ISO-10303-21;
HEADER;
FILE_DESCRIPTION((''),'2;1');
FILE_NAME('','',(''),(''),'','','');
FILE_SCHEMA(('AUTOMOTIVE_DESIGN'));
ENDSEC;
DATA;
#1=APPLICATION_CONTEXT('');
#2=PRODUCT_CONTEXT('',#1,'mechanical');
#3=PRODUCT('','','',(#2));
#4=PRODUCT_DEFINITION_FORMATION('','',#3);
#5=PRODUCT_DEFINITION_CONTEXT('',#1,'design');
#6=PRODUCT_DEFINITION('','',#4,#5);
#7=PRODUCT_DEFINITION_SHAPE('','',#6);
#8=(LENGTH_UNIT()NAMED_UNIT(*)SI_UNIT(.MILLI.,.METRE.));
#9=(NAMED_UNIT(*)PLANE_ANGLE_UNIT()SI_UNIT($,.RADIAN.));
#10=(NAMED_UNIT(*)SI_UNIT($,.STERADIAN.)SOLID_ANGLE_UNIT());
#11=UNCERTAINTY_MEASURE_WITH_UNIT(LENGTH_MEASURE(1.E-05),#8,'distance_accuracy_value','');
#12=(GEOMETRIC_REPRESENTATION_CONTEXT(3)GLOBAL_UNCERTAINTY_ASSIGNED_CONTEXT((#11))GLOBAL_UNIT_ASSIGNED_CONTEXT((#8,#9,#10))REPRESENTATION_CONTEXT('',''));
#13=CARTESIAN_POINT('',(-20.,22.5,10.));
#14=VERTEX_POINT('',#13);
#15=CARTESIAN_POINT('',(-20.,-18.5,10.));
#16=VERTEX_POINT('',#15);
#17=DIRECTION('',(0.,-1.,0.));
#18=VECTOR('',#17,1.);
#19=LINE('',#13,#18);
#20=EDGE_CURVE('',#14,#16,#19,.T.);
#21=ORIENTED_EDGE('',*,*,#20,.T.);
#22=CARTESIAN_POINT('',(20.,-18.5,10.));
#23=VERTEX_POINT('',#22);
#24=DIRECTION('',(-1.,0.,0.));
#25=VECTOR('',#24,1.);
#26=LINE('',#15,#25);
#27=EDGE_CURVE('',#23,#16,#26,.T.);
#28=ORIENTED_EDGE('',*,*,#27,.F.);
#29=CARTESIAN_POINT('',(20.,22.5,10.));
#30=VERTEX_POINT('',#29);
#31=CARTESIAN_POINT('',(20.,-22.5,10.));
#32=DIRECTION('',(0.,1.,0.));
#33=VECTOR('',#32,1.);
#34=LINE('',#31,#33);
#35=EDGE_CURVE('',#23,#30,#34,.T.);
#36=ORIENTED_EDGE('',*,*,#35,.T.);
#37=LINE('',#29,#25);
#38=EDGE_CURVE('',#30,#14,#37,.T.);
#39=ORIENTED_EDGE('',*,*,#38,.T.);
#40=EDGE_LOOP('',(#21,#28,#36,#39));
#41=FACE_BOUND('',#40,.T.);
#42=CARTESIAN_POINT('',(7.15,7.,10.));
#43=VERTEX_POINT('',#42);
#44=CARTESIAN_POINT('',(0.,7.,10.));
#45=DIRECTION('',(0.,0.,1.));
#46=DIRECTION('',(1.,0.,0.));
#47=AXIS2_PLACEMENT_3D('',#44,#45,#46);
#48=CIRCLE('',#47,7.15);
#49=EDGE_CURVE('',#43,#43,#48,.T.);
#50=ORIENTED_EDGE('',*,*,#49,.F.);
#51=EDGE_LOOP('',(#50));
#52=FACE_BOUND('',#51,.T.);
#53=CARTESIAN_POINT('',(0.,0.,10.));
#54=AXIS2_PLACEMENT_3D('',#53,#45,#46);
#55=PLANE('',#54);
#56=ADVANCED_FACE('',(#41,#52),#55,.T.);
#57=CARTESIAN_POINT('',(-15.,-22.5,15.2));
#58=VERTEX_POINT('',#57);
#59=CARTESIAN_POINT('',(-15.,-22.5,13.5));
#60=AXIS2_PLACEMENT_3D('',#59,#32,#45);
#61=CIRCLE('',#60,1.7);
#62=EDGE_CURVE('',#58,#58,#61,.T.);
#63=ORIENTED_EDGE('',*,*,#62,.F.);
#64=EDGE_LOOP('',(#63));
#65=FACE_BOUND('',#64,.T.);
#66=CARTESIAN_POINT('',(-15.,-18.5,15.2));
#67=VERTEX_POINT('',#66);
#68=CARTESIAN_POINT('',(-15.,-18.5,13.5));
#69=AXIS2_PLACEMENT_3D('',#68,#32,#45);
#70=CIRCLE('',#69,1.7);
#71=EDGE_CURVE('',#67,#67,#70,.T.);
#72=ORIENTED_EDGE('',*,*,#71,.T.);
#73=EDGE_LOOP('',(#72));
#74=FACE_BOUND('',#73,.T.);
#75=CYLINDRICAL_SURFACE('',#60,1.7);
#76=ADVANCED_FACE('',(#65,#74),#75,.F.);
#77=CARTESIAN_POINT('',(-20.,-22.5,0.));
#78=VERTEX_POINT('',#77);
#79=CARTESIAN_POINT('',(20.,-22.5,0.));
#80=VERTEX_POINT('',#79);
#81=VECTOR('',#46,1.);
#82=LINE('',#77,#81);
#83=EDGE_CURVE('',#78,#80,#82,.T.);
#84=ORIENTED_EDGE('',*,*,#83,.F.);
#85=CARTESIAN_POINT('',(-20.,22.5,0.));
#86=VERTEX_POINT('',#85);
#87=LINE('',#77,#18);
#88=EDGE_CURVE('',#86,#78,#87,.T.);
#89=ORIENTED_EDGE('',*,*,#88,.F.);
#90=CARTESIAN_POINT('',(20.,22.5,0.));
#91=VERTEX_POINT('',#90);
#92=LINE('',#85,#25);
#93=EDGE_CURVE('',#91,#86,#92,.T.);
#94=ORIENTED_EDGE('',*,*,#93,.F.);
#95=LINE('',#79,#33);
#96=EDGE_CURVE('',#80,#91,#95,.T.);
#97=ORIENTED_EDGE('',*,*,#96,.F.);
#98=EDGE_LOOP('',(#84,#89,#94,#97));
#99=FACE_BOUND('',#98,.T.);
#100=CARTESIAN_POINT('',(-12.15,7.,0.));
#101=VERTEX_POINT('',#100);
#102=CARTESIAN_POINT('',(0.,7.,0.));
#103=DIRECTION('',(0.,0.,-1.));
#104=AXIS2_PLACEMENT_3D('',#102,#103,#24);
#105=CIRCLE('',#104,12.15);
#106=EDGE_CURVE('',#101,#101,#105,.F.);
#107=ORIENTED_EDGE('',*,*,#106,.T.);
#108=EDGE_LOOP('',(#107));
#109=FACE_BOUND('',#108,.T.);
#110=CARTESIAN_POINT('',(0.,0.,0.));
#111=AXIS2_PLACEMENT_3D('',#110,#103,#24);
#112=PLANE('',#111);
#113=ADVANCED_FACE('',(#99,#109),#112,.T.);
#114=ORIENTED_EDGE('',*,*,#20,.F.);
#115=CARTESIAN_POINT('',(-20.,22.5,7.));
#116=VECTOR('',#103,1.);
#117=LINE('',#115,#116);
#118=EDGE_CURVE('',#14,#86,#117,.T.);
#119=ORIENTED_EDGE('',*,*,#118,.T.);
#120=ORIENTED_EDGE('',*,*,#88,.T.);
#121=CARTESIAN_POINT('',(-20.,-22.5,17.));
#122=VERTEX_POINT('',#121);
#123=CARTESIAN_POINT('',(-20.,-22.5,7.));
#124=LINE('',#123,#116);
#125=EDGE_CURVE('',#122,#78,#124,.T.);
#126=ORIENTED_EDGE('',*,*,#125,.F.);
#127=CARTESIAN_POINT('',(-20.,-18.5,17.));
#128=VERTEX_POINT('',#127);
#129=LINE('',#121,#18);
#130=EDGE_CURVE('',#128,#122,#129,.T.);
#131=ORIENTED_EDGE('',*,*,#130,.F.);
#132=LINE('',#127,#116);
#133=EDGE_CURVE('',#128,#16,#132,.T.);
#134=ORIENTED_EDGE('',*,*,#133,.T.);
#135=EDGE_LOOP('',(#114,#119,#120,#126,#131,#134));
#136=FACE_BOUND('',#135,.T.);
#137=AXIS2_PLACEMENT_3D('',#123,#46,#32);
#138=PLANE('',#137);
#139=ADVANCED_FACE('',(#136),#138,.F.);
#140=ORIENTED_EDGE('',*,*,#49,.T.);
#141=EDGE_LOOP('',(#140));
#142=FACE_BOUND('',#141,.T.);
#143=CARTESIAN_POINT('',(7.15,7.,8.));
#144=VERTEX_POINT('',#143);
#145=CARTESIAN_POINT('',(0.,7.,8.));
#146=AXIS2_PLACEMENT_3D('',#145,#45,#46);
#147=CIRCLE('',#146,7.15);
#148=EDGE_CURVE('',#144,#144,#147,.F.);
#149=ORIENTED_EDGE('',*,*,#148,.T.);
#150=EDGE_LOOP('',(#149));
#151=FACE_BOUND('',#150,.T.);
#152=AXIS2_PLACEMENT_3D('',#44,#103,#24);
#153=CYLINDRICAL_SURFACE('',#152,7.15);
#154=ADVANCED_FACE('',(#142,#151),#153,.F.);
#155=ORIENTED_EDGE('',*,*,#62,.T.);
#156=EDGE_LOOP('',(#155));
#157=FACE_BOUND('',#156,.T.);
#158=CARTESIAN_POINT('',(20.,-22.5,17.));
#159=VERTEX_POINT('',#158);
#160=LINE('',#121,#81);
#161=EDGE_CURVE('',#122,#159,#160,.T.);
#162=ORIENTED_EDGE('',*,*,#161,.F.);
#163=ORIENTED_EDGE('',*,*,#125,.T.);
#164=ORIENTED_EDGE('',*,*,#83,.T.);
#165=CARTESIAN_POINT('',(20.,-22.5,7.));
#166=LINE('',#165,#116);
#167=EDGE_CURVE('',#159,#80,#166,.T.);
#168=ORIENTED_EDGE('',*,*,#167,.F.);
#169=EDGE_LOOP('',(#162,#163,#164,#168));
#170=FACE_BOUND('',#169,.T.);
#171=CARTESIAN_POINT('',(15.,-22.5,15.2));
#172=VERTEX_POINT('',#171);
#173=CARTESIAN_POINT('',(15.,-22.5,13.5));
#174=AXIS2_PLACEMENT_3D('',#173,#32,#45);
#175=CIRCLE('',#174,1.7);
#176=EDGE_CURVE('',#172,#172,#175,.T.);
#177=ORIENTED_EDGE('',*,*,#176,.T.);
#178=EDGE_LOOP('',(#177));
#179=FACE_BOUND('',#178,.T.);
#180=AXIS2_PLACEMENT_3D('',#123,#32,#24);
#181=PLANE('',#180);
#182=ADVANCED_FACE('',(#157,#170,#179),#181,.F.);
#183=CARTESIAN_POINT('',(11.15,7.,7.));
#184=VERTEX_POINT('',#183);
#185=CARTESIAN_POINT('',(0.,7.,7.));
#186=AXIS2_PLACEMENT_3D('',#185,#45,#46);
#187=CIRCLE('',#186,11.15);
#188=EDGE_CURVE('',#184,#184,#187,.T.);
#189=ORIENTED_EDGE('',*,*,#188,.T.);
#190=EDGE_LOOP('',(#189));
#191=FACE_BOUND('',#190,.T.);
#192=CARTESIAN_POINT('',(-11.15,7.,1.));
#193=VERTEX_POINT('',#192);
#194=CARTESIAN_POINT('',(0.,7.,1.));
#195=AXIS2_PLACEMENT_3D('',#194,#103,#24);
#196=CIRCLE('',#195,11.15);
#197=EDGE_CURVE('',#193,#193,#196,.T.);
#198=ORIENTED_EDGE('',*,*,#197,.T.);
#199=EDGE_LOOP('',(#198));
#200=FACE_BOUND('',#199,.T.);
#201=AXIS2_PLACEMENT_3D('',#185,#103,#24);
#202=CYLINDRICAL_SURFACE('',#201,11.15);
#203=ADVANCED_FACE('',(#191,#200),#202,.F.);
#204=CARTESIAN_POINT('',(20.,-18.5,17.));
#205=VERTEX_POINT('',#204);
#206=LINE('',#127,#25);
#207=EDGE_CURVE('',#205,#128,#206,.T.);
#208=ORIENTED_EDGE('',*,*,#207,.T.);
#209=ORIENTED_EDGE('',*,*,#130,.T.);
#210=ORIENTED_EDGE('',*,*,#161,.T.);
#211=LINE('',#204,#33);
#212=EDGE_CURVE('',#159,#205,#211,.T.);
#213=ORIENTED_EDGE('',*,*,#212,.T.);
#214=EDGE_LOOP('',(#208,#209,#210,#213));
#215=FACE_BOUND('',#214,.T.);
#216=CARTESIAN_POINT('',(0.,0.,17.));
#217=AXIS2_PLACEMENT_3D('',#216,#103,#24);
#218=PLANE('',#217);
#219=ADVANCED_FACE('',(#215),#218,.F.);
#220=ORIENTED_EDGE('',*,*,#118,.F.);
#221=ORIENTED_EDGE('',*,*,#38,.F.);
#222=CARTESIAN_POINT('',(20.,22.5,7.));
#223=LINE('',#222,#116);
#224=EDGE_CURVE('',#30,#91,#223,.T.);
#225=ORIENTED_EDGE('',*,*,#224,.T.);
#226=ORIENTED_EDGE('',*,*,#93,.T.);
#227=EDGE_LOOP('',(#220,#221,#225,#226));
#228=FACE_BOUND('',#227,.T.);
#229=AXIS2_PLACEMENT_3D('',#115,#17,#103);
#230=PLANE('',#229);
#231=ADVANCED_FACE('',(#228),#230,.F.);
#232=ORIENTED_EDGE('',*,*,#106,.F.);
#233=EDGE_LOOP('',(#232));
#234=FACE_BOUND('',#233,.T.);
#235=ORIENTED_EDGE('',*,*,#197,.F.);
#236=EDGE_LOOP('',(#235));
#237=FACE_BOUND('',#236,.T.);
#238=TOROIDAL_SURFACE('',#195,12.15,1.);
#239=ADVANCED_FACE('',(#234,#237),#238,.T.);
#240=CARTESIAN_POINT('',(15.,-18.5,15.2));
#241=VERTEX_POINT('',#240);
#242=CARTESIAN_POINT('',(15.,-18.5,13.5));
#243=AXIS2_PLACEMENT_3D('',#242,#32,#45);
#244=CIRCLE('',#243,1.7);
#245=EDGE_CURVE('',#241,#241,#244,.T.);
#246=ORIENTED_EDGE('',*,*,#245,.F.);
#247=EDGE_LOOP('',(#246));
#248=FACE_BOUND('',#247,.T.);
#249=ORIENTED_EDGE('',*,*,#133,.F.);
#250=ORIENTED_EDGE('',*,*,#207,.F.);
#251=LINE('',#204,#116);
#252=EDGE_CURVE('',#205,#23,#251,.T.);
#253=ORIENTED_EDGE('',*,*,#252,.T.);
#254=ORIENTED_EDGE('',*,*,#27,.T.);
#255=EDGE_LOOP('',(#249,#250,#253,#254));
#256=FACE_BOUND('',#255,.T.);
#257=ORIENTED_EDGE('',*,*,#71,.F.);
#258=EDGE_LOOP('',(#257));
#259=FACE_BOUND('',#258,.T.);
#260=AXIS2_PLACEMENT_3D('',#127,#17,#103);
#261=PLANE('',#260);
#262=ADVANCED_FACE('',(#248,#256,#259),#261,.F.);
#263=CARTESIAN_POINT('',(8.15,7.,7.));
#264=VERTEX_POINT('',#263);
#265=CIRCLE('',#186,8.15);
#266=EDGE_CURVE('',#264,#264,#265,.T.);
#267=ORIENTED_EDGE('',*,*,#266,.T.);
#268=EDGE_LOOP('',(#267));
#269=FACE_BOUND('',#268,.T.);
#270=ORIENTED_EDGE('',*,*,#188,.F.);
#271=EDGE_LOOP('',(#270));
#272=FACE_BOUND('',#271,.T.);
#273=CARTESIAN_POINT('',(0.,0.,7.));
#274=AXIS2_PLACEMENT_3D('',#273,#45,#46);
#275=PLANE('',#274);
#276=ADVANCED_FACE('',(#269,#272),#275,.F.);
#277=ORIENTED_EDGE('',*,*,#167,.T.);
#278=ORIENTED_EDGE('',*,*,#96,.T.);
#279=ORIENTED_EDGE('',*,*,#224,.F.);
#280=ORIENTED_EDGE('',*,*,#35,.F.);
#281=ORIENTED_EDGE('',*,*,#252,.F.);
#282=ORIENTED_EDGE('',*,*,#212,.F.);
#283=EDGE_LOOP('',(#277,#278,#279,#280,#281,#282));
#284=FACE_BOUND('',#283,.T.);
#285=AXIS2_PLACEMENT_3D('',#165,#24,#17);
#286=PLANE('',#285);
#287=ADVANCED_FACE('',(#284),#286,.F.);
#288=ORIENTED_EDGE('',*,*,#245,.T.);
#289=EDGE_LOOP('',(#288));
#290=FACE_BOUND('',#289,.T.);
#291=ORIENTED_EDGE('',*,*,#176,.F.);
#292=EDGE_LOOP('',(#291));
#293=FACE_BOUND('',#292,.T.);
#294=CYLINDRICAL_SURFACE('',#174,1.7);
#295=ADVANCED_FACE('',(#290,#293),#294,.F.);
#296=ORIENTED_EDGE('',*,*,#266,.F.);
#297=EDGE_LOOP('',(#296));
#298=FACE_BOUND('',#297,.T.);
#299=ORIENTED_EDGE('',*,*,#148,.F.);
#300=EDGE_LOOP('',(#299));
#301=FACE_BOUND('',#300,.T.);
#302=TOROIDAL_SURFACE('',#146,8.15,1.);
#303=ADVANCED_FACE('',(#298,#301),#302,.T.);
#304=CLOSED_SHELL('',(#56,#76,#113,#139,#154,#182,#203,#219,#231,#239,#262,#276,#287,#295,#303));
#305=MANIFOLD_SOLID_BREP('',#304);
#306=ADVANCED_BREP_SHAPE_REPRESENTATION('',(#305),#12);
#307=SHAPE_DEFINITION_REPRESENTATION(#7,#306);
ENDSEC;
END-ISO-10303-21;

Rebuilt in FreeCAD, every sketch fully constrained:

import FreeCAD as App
import Part
import Sketcher
from FreeCAD import Vector


def edges_at(feature, points):
    """Names of the edges that pass closest to the given points."""
    edges = feature.Shape.Edges
    near = lambda p: min(range(len(edges)), key=lambda i: edges[i].distToShape(Part.Vertex(*p))[0])
    return sorted({f"Edge{near(p) + 1}" for p in points})


def add_polygon(sketch, points):
    """Adds a closed chain of lines whose ends are joined by coincident constraints."""
    first, n = sketch.GeometryCount, len(points)
    for a, b in zip(points, points[1:] + points[:1]):
        sketch.addGeometry(Part.LineSegment(App.Vector(*a, 0), App.Vector(*b, 0)), False)
    for i in range(n):
        sketch.addConstraint(Sketcher.Constraint("Coincident", first + i, 2, first + (i + 1) % n, 1))

doc = App.newDocument("Part")
params = doc.addObject("Spreadsheet::Sheet", "Params")
for row, (alias, value) in enumerate([
    ("sketch1_diameter", "22.3 mm"),
    ("sketch1_width", "40 mm"),
    ("sketch1_height", "45 mm"),
    ("pad1_length", "7 mm"),
    ("sketch2_diameter", "14.3 mm"),
    ("sketch2_width", "40 mm"),
    ("sketch2_height", "45 mm"),
    ("pad2_length", "3 mm"),
    ("fillet_radius", "1 mm"),
    ("sketch3_width", "40 mm"),
    ("sketch3_height", "4 mm"),
    ("pad3_length", "7 mm"),
    ("sketch4_diameter", "3.4 mm"),
], start=1):
    params.set(f"A{row}", alias)
    params.set(f"B{row}", "=" + value)
    params.setAlias(f"B{row}", alias)

body = doc.addObject("PartDesign::Body", "Body")

sketch1 = body.newObject("Sketcher::SketchObject", "Sketch")
sketch1.AttachmentSupport = (doc.getObject("XY_Plane"), [""])
sketch1.MapMode = "FlatFace"
add_polygon(sketch1, [(-20, 22), (-20, -22), (20, -22), (20, 22)])
sketch1.addGeometry(Part.Circle(Vector(0, 7, 0), Vector(0, 0, 1), 11), False)
sketch1.addConstraint(Sketcher.Constraint("Vertical", 0))
sketch1.addConstraint(Sketcher.Constraint("Horizontal", 1))
sketch1.addConstraint(Sketcher.Constraint("Vertical", 2))
sketch1.addConstraint(Sketcher.Constraint("Horizontal", 3))
sketch1.addConstraint(Sketcher.Constraint("Symmetric", 0, 2, 2, 2, -1, 1))
sketch1.addConstraint(Sketcher.Constraint("PointOnObject", 4, 3, -2))
sketch1.addConstraint(Sketcher.Constraint("Diameter", 4, 22.3))
sketch1.addConstraint(Sketcher.Constraint("DistanceX", 1, 1, 1, 2, 40.0))
sketch1.addConstraint(Sketcher.Constraint("DistanceY", 0, 2, 0, 1, 45.0))
sketch1.addConstraint(Sketcher.Constraint("DistanceY", -1, 1, 4, 3, 7.0))
sketch1.setExpression("Constraints[10]", "Params.sketch1_diameter")
sketch1.setExpression("Constraints[11]", "Params.sketch1_width")
sketch1.setExpression("Constraints[12]", "Params.sketch1_height")
pad1 = body.newObject("PartDesign::Pad", "Pad")
pad1.Profile = sketch1
pad1.setExpression("Length", "Params.pad1_length")

sketch2 = body.newObject("Sketcher::SketchObject", "Sketch001")
sketch2.AttachmentSupport = (doc.getObject("XY_Plane"), [""])
sketch2.MapMode = "FlatFace"
sketch2.AttachmentOffset = App.Placement(Vector(0, 0, 7), App.Rotation())
add_polygon(sketch2, [(-20, 22), (-20, -22), (20, -22), (20, 22)])
sketch2.addGeometry(Part.Circle(Vector(0, 7, 0), Vector(0, 0, 1), 7), False)
sketch2.addConstraint(Sketcher.Constraint("Vertical", 0))
sketch2.addConstraint(Sketcher.Constraint("Horizontal", 1))
sketch2.addConstraint(Sketcher.Constraint("Vertical", 2))
sketch2.addConstraint(Sketcher.Constraint("Horizontal", 3))
sketch2.addConstraint(Sketcher.Constraint("Symmetric", 0, 2, 2, 2, -1, 1))
sketch2.addConstraint(Sketcher.Constraint("PointOnObject", 4, 3, -2))
sketch2.addConstraint(Sketcher.Constraint("Diameter", 4, 14.3))
sketch2.addConstraint(Sketcher.Constraint("DistanceX", 1, 1, 1, 2, 40.0))
sketch2.addConstraint(Sketcher.Constraint("DistanceY", 0, 2, 0, 1, 45.0))
sketch2.addConstraint(Sketcher.Constraint("DistanceY", -1, 1, 4, 3, 7.0))
sketch2.setExpression("Constraints[10]", "Params.sketch2_diameter")
sketch2.setExpression("Constraints[11]", "Params.sketch2_width")
sketch2.setExpression("Constraints[12]", "Params.sketch2_height")
pad2 = body.newObject("PartDesign::Pad", "Pad001")
pad2.Profile = sketch2
pad2.setExpression("Length", "Params.pad2_length")
doc.recompute()

fillet = body.newObject("PartDesign::Fillet", "Fillet")
fillet.Base = (pad2, edges_at(pad2, [(-11.15, 7, 0), (-7.15, 7, 7)]))
fillet.setExpression("Radius", "Params.fillet_radius")

sketch3 = body.newObject("Sketcher::SketchObject", "Sketch002")
sketch3.AttachmentSupport = (doc.getObject("XY_Plane"), [""])
sketch3.MapMode = "FlatFace"
sketch3.AttachmentOffset = App.Placement(Vector(0, 0, 10), App.Rotation())
add_polygon(sketch3, [(-20, -18.5), (-20, -22.5), (20, -22.5), (20, -18.5)])
sketch3.addConstraint(Sketcher.Constraint("Vertical", 0))
sketch3.addConstraint(Sketcher.Constraint("Horizontal", 1))
sketch3.addConstraint(Sketcher.Constraint("Vertical", 2))
sketch3.addConstraint(Sketcher.Constraint("Horizontal", 3))
sketch3.addConstraint(Sketcher.Constraint("DistanceX", 1, 1, 1, 2, 40.0))
sketch3.addConstraint(Sketcher.Constraint("DistanceY", 0, 2, 0, 1, 4.0))
sketch3.addConstraint(Sketcher.Constraint("DistanceX", 0, 2, -1, 1, 20.0))
sketch3.addConstraint(Sketcher.Constraint("DistanceY", 0, 2, -1, 1, 22.5))
sketch3.setExpression("Constraints[8]", "Params.sketch3_width")
sketch3.setExpression("Constraints[9]", "Params.sketch3_height")
pad3 = body.newObject("PartDesign::Pad", "Pad002")
pad3.Profile = sketch3
pad3.setExpression("Length", "Params.pad3_length")

sketch4 = body.newObject("Sketcher::SketchObject", "Sketch003")
sketch4.AttachmentSupport = (doc.getObject("XZ_Plane"), [""])
sketch4.MapMode = "FlatFace"
sketch4.AttachmentOffset = App.Placement(Vector(0, 0, 18.5), App.Rotation())
sketch4.addGeometry(Part.Circle(Vector(-15, 13.5, 0), Vector(0, 0, 1), 1.7), False)
sketch4.addGeometry(Part.Circle(Vector(15, 13.5, 0), Vector(0, 0, 1), 1.7), False)
sketch4.addConstraint(Sketcher.Constraint("Equal", 0, 1))
sketch4.addConstraint(Sketcher.Constraint("Symmetric", 0, 3, 1, 3, -2))
sketch4.addConstraint(Sketcher.Constraint("Diameter", 0, 3.4))
sketch4.addConstraint(Sketcher.Constraint("DistanceX", 0, 3, -1, 1, 15.0))
sketch4.addConstraint(Sketcher.Constraint("DistanceY", -1, 1, 0, 3, 13.5))
sketch4.setExpression("Constraints[2]", "Params.sketch4_diameter")
pocket1 = body.newObject("PartDesign::Pocket", "Pocket")
pocket1.Profile = sketch4
pocket1.Type = "ThroughAll"
pocket1.Reversed = True

doc.recompute()
